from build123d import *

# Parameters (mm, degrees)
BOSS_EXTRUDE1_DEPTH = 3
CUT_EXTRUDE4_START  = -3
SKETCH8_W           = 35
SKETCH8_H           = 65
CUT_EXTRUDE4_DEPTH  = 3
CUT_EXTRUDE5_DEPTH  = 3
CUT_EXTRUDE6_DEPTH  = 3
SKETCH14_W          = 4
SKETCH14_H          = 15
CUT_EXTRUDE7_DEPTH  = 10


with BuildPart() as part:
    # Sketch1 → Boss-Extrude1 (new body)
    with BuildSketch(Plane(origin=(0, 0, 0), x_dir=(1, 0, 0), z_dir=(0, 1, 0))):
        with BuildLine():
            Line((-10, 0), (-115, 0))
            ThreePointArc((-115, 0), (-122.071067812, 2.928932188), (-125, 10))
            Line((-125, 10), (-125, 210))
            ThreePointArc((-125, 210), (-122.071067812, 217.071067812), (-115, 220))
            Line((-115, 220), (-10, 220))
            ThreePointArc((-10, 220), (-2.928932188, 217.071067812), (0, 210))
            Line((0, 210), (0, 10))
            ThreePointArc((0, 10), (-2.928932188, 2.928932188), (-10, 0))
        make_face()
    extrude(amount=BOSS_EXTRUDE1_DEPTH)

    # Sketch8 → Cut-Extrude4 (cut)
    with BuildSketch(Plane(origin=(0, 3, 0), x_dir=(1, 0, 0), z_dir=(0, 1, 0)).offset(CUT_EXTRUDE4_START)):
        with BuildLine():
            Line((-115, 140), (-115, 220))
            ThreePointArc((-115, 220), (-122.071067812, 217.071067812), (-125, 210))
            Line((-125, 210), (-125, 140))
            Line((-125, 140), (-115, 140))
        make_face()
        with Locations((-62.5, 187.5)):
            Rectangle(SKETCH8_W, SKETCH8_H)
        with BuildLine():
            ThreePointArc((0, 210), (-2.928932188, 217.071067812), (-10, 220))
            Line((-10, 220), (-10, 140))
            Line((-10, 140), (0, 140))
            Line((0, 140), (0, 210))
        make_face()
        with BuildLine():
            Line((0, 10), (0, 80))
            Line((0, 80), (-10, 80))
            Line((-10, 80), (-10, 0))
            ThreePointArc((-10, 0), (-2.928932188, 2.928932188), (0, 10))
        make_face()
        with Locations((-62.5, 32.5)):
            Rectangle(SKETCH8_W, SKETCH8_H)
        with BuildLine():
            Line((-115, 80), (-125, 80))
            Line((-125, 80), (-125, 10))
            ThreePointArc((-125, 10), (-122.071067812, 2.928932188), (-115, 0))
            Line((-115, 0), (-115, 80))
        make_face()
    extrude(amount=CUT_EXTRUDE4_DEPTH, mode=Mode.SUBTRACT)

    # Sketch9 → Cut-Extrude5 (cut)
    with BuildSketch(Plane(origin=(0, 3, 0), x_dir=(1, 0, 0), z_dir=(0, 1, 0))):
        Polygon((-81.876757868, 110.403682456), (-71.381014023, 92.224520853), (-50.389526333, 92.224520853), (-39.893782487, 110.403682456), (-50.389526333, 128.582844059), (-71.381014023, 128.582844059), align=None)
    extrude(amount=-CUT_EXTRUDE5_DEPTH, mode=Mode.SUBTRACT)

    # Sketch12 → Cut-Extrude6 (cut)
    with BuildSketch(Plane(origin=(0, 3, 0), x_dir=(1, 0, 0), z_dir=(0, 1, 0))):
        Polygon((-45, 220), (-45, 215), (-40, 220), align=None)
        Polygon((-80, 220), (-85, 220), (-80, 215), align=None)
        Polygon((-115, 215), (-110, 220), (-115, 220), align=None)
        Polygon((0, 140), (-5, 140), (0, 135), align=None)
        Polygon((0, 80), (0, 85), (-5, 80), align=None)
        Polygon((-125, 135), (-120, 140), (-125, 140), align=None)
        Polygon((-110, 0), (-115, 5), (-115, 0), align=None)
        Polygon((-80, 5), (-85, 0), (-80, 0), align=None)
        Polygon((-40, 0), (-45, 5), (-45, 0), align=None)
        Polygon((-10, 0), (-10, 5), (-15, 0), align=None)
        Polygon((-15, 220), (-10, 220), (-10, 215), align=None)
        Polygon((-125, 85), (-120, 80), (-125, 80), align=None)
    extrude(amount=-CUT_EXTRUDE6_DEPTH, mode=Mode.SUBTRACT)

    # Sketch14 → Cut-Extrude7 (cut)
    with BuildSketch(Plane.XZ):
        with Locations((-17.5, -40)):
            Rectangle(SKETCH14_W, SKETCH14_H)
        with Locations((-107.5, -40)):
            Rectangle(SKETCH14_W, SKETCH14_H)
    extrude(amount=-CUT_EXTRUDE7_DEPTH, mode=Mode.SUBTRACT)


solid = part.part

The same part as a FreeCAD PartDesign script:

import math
import FreeCAD as App
import Part
import Sketcher
from FreeCAD import Vector
Q = App.Units.Quantity

doc = App.newDocument("Part")
params = doc.addObject("Spreadsheet::Sheet", "Params")
for row, (alias, value) in enumerate([
    ("sketch1_radius", "10 mm"),
    ("sketch1_width", "105 mm"),
    ("sketch1_height", "200 mm"),
    ("pad1_length", "3 mm"),
    ("sketch2_radius", "10 mm"),
    ("sketch2_width", "35 mm"),
    ("sketch2_height", "80 mm"),
    ("sketch2_height2", "65 mm"),
    ("pocket1_length", "3 mm"),
    ("pocket2_length", "3 mm"),
    ("sketch4_width", "5 mm"),
    ("pocket3_length", "3 mm"),
    ("sketch5_width", "4 mm"),
    ("sketch5_height", "15 mm"),
    ("pocket4_length", "10 mm"),
], start=1):
    params.set(f"A{row}", alias)
    params.set(f"B{row}", "=" + value)
    params.setAlias(f"B{row}", alias)

body = doc.addObject("PartDesign::Body", "Body")

sketch1 = body.newObject("Sketcher::SketchObject", "Sketch")
sketch1.AttachmentSupport = (doc.getObject("XZ_Plane"), [""])
sketch1.MapMode = "FlatFace"
sketch1.addGeometry([
    Part.LineSegment(Vector(-115, 0, 0), Vector(-10, 0, 0)),
    Part.ArcOfCircle(Part.Circle(Vector(-10, -10, 0), Vector(0, 0, 1), 10), math.radians(0), math.radians(90)),
    Part.LineSegment(Vector(0, -10, 0), Vector(0, -210, 0)),
    Part.ArcOfCircle(Part.Circle(Vector(-10, -210, 0), Vector(0, 0, 1), 10), math.radians(-90), math.radians(0)),
    Part.LineSegment(Vector(-10, -220, 0), Vector(-115, -220, 0)),
    Part.ArcOfCircle(Part.Circle(Vector(-115, -210, 0), Vector(0, 0, 1), 10), math.radians(180), math.radians(270)),
    Part.LineSegment(Vector(-125, -210, 0), Vector(-125, -10, 0)),
    Part.ArcOfCircle(Part.Circle(Vector(-115, -10, 0), Vector(0, 0, 1), 10), math.radians(90), math.radians(180)),
], False)
sketch1.addConstraint([
    Sketcher.Constraint("Tangent", 0, 2, 1, 2),
    Sketcher.Constraint("Tangent", 1, 1, 2, 1),
    Sketcher.Constraint("Tangent", 2, 2, 3, 2),
    Sketcher.Constraint("Tangent", 3, 1, 4, 1),
    Sketcher.Constraint("Tangent", 4, 2, 5, 2),
    Sketcher.Constraint("Tangent", 5, 1, 6, 1),
    Sketcher.Constraint("Tangent", 6, 2, 7, 2),
    Sketcher.Constraint("Tangent", 7, 1, 0, 1),
    Sketcher.Constraint("Horizontal", 0),
    Sketcher.Constraint("Vertical", 2),
    Sketcher.Constraint("Horizontal", 4),
    Sketcher.Constraint("Vertical", 6),
    Sketcher.Constraint("Equal", 1, 3),
    Sketcher.Constraint("Equal", 3, 5),
    Sketcher.Constraint("Equal", 5, 7),
    Sketcher.Constraint("PointOnObject", 0, 2, -1),
    Sketcher.Constraint("PointOnObject", 1, 1, -2),
    Sketcher.Constraint("Radius", 1, Q("10 mm")),
    Sketcher.Constraint("DistanceX", 0, 1, 0, 2, Q("105 mm")),
    Sketcher.Constraint("DistanceY", 2, 2, 2, 1, Q("200 mm")),
])
sketch1.setExpression("Constraints[17]", "Params.sketch1_radius")
sketch1.setExpression("Constraints[18]", "Params.sketch1_width")
sketch1.setExpression("Constraints[19]", "Params.sketch1_height")
pad1 = body.newObject("PartDesign::Pad", "Pad")
pad1.Profile = sketch1
pad1.setExpression("Length", "Params.pad1_length")
pad1.Reversed = True

sketch2 = body.newObject("Sketcher::SketchObject", "Sketch001")
sketch2.AttachmentSupport = (doc.getObject("XZ_Plane"), [""])
sketch2.MapMode = "FlatFace"
sketch2.addGeometry([
    Part.LineSegment(Vector(-115, -140, 0), Vector(-115, -220, 0)),
    Part.ArcOfCircle(Part.Circle(Vector(-115, -210, 0), Vector(0, 0, 1), 10), math.radians(180), math.radians(270)),
    Part.LineSegment(Vector(-125, -210, 0), Vector(-125, -140, 0)),
    Part.LineSegment(Vector(-125, -140, 0), Vector(-115, -140, 0)),
    Part.LineSegment(Vector(-80, -220, 0), Vector(-80, -155, 0)),
    Part.LineSegment(Vector(-80, -155, 0), Vector(-45, -155, 0)),
    Part.LineSegment(Vector(-45, -155, 0), Vector(-45, -220, 0)),
    Part.LineSegment(Vector(-45, -220, 0), Vector(-80, -220, 0)),
    Part.ArcOfCircle(Part.Circle(Vector(-10, -210, 0), Vector(0, 0, 1), 10), math.radians(-90), math.radians(0)),
    Part.LineSegment(Vector(-10, -220, 0), Vector(-10, -140, 0)),
    Part.LineSegment(Vector(-10, -140, 0), Vector(0, -140, 0)),
    Part.LineSegment(Vector(0, -140, 0), Vector(0, -210, 0)),
    Part.LineSegment(Vector(0, -10, 0), Vector(0, -80, 0)),
    Part.LineSegment(Vector(0, -80, 0), Vector(-10, -80, 0)),
    Part.LineSegment(Vector(-10, -80, 0), Vector(-10, 0, 0)),
    Part.ArcOfCircle(Part.Circle(Vector(-10, -10, 0), Vector(0, 0, 1), 10), math.radians(0), math.radians(90)),
    Part.LineSegment(Vector(-80, -65, 0), Vector(-80, 0, 0)),
    Part.LineSegment(Vector(-80, 0, 0), Vector(-45, 0, 0)),
    Part.LineSegment(Vector(-45, 0, 0), Vector(-45, -65, 0)),
    Part.LineSegment(Vector(-45, -65, 0), Vector(-80, -65, 0)),
    Part.LineSegment(Vector(-115, -80, 0), Vector(-125, -80, 0)),
    Part.LineSegment(Vector(-125, -80, 0), Vector(-125, -10, 0)),
    Part.ArcOfCircle(Part.Circle(Vector(-115, -10, 0), Vector(0, 0, 1), 10), math.radians(90), math.radians(180)),
    Part.LineSegment(Vector(-115, 0, 0), Vector(-115, -80, 0)),
], False)
sketch2.addConstraint([
    Sketcher.Constraint("Coincident", 0, 2, 1, 2),
    Sketcher.Constraint("Tangent", 1, 1, 2, 1),
    Sketcher.Constraint("Coincident", 2, 2, 3, 1),
    Sketcher.Constraint("Coincident", 3, 2, 0, 1),
    Sketcher.Constraint("Coincident", 4, 2, 5, 1),
    Sketcher.Constraint("Coincident", 5, 2, 6, 1),
    Sketcher.Constraint("Coincident", 6, 2, 7, 1),
    Sketcher.Constraint("Coincident", 7, 2, 4, 1),
    Sketcher.Constraint("Coincident", 8, 1, 9, 1),
    Sketcher.Constraint("Coincident", 9, 2, 10, 1),
    Sketcher.Constraint("Coincident", 10, 2, 11, 1),
    Sketcher.Constraint("Tangent", 11, 2, 8, 2),
    Sketcher.Constraint("Coincident", 12, 2, 13, 1),
    Sketcher.Constraint("Coincident", 13, 2, 14, 1),
    Sketcher.Constraint("Coincident", 14, 2, 15, 2),
    Sketcher.Constraint("Tangent", 15, 1, 12, 1),
    Sketcher.Constraint("Coincident", 16, 2, 17, 1),
    Sketcher.Constraint("Coincident", 17, 2, 18, 1),
    Sketcher.Constraint("Coincident", 18, 2, 19, 1),
    Sketcher.Constraint("Coincident", 19, 2, 16, 1),
    Sketcher.Constraint("Coincident", 20, 2, 21, 1),
    Sketcher.Constraint("Tangent", 21, 2, 22, 2),
    Sketcher.Constraint("Coincident", 22, 1, 23, 1),
    Sketcher.Constraint("Coincident", 23, 2, 20, 1),
    Sketcher.Constraint("Vertical", 0),
    Sketcher.Constraint("Vertical", 2),
    Sketcher.Constraint("Horizontal", 3),
    Sketcher.Constraint("Vertical", 4),
    Sketcher.Constraint("Horizontal", 5),
    Sketcher.Constraint("Vertical", 6),
    Sketcher.Constraint("Horizontal", 7),
    Sketcher.Constraint("Vertical", 9),
    Sketcher.Constraint("Horizontal", 10),
    Sketcher.Constraint("Vertical", 11),
    Sketcher.Constraint("Vertical", 12),
    Sketcher.Constraint("Horizontal", 13),
    Sketcher.Constraint("Vertical", 14),
    Sketcher.Constraint("Vertical", 16),
    Sketcher.Constraint("Horizontal", 17),
    Sketcher.Constraint("Vertical", 18),
    Sketcher.Constraint("Horizontal", 19),
    Sketcher.Constraint("Horizontal", 20),
    Sketcher.Constraint("Vertical", 21),
    Sketcher.Constraint("Vertical", 23),
    Sketcher.Constraint("Equal", 1, 8),
    Sketcher.Constraint("Equal", 8, 15),
    Sketcher.Constraint("Equal", 15, 22),
    Sketcher.Constraint("PointOnObject", 10, 2, -2),
    Sketcher.Constraint("PointOnObject", 12, 2, -2),
    Sketcher.Constraint("PointOnObject", 14, 2, -1),
    Sketcher.Constraint("PointOnObject", 16, 2, -1),
    Sketcher.Constraint("PointOnObject", 22, 1, -1),
    Sketcher.Constraint("Horizontal", 1, 3, 8, 3),
    Sketcher.Constraint("Horizontal", 0, 2, 6, 2),
    Sketcher.Constraint("Horizontal", 3, 2, 9, 2),
    Sketcher.Constraint("Horizontal", 13, 2, 20, 2),
    Sketcher.Constraint("Vertical", 1, 3, 22, 3),
    Sketcher.Constraint("Vertical", 22, 3, 0, 2),
    Sketcher.Constraint("Vertical", 15, 3, 8, 1),
    Sketcher.Constraint("Vertical", 9, 2, 13, 2),
    Sketcher.Constraint("Vertical", 7, 2, 16, 2),
    Sketcher.Constraint("Vertical", 6, 2, 17, 2),
    Sketcher.Constraint("Vertical", 3, 2, 22, 1),
    Sketcher.Constraint("Equal", 11, 12),
    Sketcher.Constraint("Equal", 6, 16),
    Sketcher.Constraint("Radius", 1, Q("10 mm")),
    Sketcher.Constraint("DistanceX", 5, 1, 5, 2, Q("35 mm")),
    Sketcher.Constraint("DistanceY", 0, 2, 0, 1, Q("80 mm")),
    Sketcher.Constraint("DistanceY", 4, 1, 4, 2, Q("65 mm")),
    Sketcher.Constraint("DistanceX", 1, 3, -1, 1, Q("115 mm")),
    Sketcher.Constraint("DistanceY", 1, 3, -1, 1, Q("210 mm")),
    Sketcher.Constraint("DistanceX", 4, 2, -1, 1, Q("80 mm")),
])
sketch2.setExpression("Constraints[65]", "Params.sketch2_radius")
sketch2.setExpression("Constraints[66]", "Params.sketch2_width")
sketch2.setExpression("Constraints[67]", "Params.sketch2_height")
sketch2.setExpression("Constraints[68]", "Params.sketch2_height2")
pocket1 = body.newObject("PartDesign::Pocket", "Pocket")
pocket1.Profile = sketch2
pocket1.setExpression("Length", "Params.pocket1_length")

sketch3 = body.newObject("Sketcher::SketchObject", "Sketch002")
sketch3.AttachmentSupport = (doc.getObject("XZ_Plane"), [""])
sketch3.MapMode = "FlatFace"
sketch3.AttachmentOffset = App.Placement(Vector(0, 0, -3), App.Rotation())
sketch3.addGeometry([
    Part.LineSegment(Vector(-82, -110, 0), Vector(-71, -92, 0)),
    Part.LineSegment(Vector(-71, -92, 0), Vector(-50, -92, 0)),
    Part.LineSegment(Vector(-50, -92, 0), Vector(-40, -110, 0)),
    Part.LineSegment(Vector(-40, -110, 0), Vector(-50, -129, 0)),
    Part.LineSegment(Vector(-50, -129, 0), Vector(-71, -129, 0)),
    Part.LineSegment(Vector(-71, -129, 0), Vector(-82, -110, 0)),
], False)
sketch3.addConstraint([
    Sketcher.Constraint("Coincident", 0, 2, 1, 1),
    Sketcher.Constraint("Coincident", 1, 2, 2, 1),
    Sketcher.Constraint("Coincident", 2, 2, 3, 1),
    Sketcher.Constraint("Coincident", 3, 2, 4, 1),
    Sketcher.Constraint("Coincident", 4, 2, 5, 1),
    Sketcher.Constraint("Coincident", 5, 2, 0, 1),
    Sketcher.Constraint("Horizontal", 1),
    Sketcher.Constraint("Horizontal", 4),
    Sketcher.Constraint("Parallel", 0, 3),
    Sketcher.Constraint("Parallel", 2, 5),
    Sketcher.Constraint("Horizontal", 2, 2, 5, 2),
    Sketcher.Constraint("Vertical", 1, 2, 3, 2),
    Sketcher.Constraint("Vertical", 0, 2, 4, 2),
    Sketcher.Constraint("Angle", 0, Q("60 deg")),
    Sketcher.Constraint("DistanceX", 1, 1, 1, 2, Q("20.991488 mm")),
    Sketcher.Constraint("DistanceY", 0, 2, -1, 1, Q("92.224521 mm")),
    Sketcher.Constraint("DistanceY", 2, 2, 1, 2, Q("18.179162 mm")),
    Sketcher.Constraint("DistanceX", 0, 2, -1, 1, Q("71.381014 mm")),
])
pocket2 = body.newObject("PartDesign::Pocket", "Pocket001")
pocket2.Profile = sketch3
pocket2.setExpression("Length", "Params.pocket2_length")
pocket2.Reversed = True

sketch4 = body.newObject("Sketcher::SketchObject", "Sketch003")
sketch4.AttachmentSupport = (doc.getObject("XZ_Plane"), [""])
sketch4.MapMode = "FlatFace"
sketch4.AttachmentOffset = App.Placement(Vector(0, 0, -3), App.Rotation())
sketch4.addGeometry([
    Part.LineSegment(Vector(-45, -220, 0), Vector(-45, -215, 0)),
    Part.LineSegment(Vector(-45, -215, 0), Vector(-40, -220, 0)),
    Part.LineSegment(Vector(-40, -220, 0), Vector(-45, -220, 0)),
    Part.LineSegment(Vector(-80, -220, 0), Vector(-85, -220, 0)),
    Part.LineSegment(Vector(-85, -220, 0), Vector(-80, -215, 0)),
    Part.LineSegment(Vector(-80, -215, 0), Vector(-80, -220, 0)),
    Part.LineSegment(Vector(-115, -215, 0), Vector(-110, -220, 0)),
    Part.LineSegment(Vector(-110, -220, 0), Vector(-115, -220, 0)),
    Part.LineSegment(Vector(-115, -220, 0), Vector(-115, -215, 0)),
    Part.LineSegment(Vector(0, -140, 0), Vector(-5, -140, 0)),
    Part.LineSegment(Vector(-5, -140, 0), Vector(0, -135, 0)),
    Part.LineSegment(Vector(0, -135, 0), Vector(0, -140, 0)),
    Part.LineSegment(Vector(0, -80, 0), Vector(0, -85, 0)),
    Part.LineSegment(Vector(0, -85, 0), Vector(-5, -80, 0)),
    Part.LineSegment(Vector(-5, -80, 0), Vector(0, -80, 0)),
    Part.LineSegment(Vector(-125, -135, 0), Vector(-120, -140, 0)),
    Part.LineSegment(Vector(-120, -140, 0), Vector(-125, -140, 0)),
    Part.LineSegment(Vector(-125, -140, 0), Vector(-125, -135, 0)),
    Part.LineSegment(Vector(-110, 0, 0), Vector(-115, -5, 0)),
    Part.LineSegment(Vector(-115, -5, 0), Vector(-115, 0, 0)),
    Part.LineSegment(Vector(-115, 0, 0), Vector(-110, 0, 0)),
    Part.LineSegment(Vector(-80, -5, 0), Vector(-85, 0, 0)),
    Part.LineSegment(Vector(-85, 0, 0), Vector(-80, 0, 0)),
    Part.LineSegment(Vector(-80, 0, 0), Vector(-80, -5, 0)),
    Part.LineSegment(Vector(-40, 0, 0), Vector(-45, -5, 0)),
    Part.LineSegment(Vector(-45, -5, 0), Vector(-45, 0, 0)),
    Part.LineSegment(Vector(-45, 0, 0), Vector(-40, 0, 0)),
    Part.LineSegment(Vector(-10, 0, 0), Vector(-10, -5, 0)),
    Part.LineSegment(Vector(-10, -5, 0), Vector(-15, 0, 0)),
    Part.LineSegment(Vector(-15, 0, 0), Vector(-10, 0, 0)),
    Part.LineSegment(Vector(-10, -220, 0), Vector(-15, -220, 0)),
    Part.LineSegment(Vector(-15, -220, 0), Vector(-10, -215, 0)),
    Part.LineSegment(Vector(-10, -215, 0), Vector(-10, -220, 0)),
    Part.LineSegment(Vector(-120, -80, 0), Vector(-125, -85, 0)),
    Part.LineSegment(Vector(-125, -85, 0), Vector(-125, -80, 0)),
    Part.LineSegment(Vector(-125, -80, 0), Vector(-120, -80, 0)),
], False)
sketch4.addConstraint([
    Sketcher.Constraint("Coincident", 0, 2, 1, 1),
    Sketcher.Constraint("Coincident", 1, 2, 2, 1),
    Sketcher.Constraint("Coincident", 2, 2, 0, 1),
    Sketcher.Constraint("Coincident", 3, 2, 4, 1),
    Sketcher.Constraint("Coincident", 4, 2, 5, 1),
    Sketcher.Constraint("Coincident", 5, 2, 3, 1),
    Sketcher.Constraint("Coincident", 6, 2, 7, 1),
    Sketcher.Constraint("Coincident", 7, 2, 8, 1),
    Sketcher.Constraint("Coincident", 8, 2, 6, 1),
    Sketcher.Constraint("Coincident", 9, 2, 10, 1),
    Sketcher.Constraint("Coincident", 10, 2, 11, 1),
    Sketcher.Constraint("Coincident", 11, 2, 9, 1),
    Sketcher.Constraint("Coincident", 12, 2, 13, 1),
    Sketcher.Constraint("Coincident", 13, 2, 14, 1),
    Sketcher.Constraint("Coincident", 14, 2, 12, 1),
    Sketcher.Constraint("Coincident", 15, 2, 16, 1),
    Sketcher.Constraint("Coincident", 16, 2, 17, 1),
    Sketcher.Constraint("Coincident", 17, 2, 15, 1),
    Sketcher.Constraint("Coincident", 18, 2, 19, 1),
    Sketcher.Constraint("Coincident", 19, 2, 20, 1),
    Sketcher.Constraint("Coincident", 20, 2, 18, 1),
    Sketcher.Constraint("Coincident", 21, 2, 22, 1),
    Sketcher.Constraint("Coincident", 22, 2, 23, 1),
    Sketcher.Constraint("Coincident", 23, 2, 21, 1),
    Sketcher.Constraint("Coincident", 24, 2, 25, 1),
    Sketcher.Constraint("Coincident", 25, 2, 26, 1),
    Sketcher.Constraint("Coincident", 26, 2, 24, 1),
    Sketcher.Constraint("Coincident", 27, 2, 28, 1),
    Sketcher.Constraint("Coincident", 28, 2, 29, 1),
    Sketcher.Constraint("Coincident", 29, 2, 27, 1),
    Sketcher.Constraint("Coincident", 30, 2, 31, 1),
    Sketcher.Constraint("Coincident", 31, 2, 32, 1),
    Sketcher.Constraint("Coincident", 32, 2, 30, 1),
    Sketcher.Constraint("Coincident", 33, 2, 34, 1),
    Sketcher.Constraint("Coincident", 34, 2, 35, 1),
    Sketcher.Constraint("Coincident", 35, 2, 33, 1),
    Sketcher.Constraint("Vertical", 0),
    Sketcher.Constraint("Horizontal", 2),
    Sketcher.Constraint("Horizontal", 3),
    Sketcher.Constraint("Vertical", 5),
    Sketcher.Constraint("Horizontal", 7),
    Sketcher.Constraint("Vertical", 8),
    Sketcher.Constraint("Horizontal", 9),
    Sketcher.Constraint("Vertical", 11),
    Sketcher.Constraint("Vertical", 12),
    Sketcher.Constraint("Horizontal", 14),
    Sketcher.Constraint("Horizontal", 16),
    Sketcher.Constraint("Vertical", 17),
    Sketcher.Constraint("Vertical", 19),
    Sketcher.Constraint("Horizontal", 20),
    Sketcher.Constraint("Horizontal", 22),
    Sketcher.Constraint("Vertical", 23),
    Sketcher.Constraint("Vertical", 25),
    Sketcher.Constraint("Horizontal", 26),
    Sketcher.Constraint("Vertical", 27),
    Sketcher.Constraint("Horizontal", 29),
    Sketcher.Constraint("Horizontal", 30),
    Sketcher.Constraint("Vertical", 32),
    Sketcher.Constraint("Vertical", 34),
    Sketcher.Constraint("Horizontal", 35),
    Sketcher.Constraint("PointOnObject", 10, 2, -2),
    Sketcher.Constraint("PointOnObject", 12, 2, -2),
    Sketcher.Constraint("PointOnObject", 19, 2, -1),
    Sketcher.Constraint("PointOnObject", 21, 2, -1),
    Sketcher.Constraint("PointOnObject", 25, 2, -1),
    Sketcher.Constraint("PointOnObject", 28, 2, -1),
    Sketcher.Constraint("Perpendicular", 1, 4),
    Sketcher.Constraint("Perpendicular", 4, 6),
    Sketcher.Constraint("Perpendicular", 6, 10),
    Sketcher.Constraint("Perpendicular", 10, 13),
    Sketcher.Constraint("Parallel", 13, 15),
    Sketcher.Constraint("Perpendicular", 15, 18),
    Sketcher.Constraint("Perpendicular", 18, 21),
    Sketcher.Constraint("Perpendicular", 21, 24),
    Sketcher.Constraint("Perpendicular", 24, 28),
    Sketcher.Constraint("Perpendicular", 28, 31),
    Sketcher.Constraint("Parallel", 31, 33),
    Sketcher.Constraint("Horizontal", 2, 2, 3, 2),
    Sketcher.Constraint("Horizontal", 0, 2, 4, 2),
    Sketcher.Constraint("Horizontal", 5, 2, 6, 2),
    Sketcher.Constraint("Horizontal", 4, 2, 8, 2),
    Sketcher.Constraint("Horizontal", 11, 2, 15, 2),
    Sketcher.Constraint("Horizontal", 10, 2, 17, 2),
    Sketcher.Constraint("Horizontal", 18, 2, 23, 2),
    Sketcher.Constraint("Horizontal", 23, 2, 24, 2),
    Sketcher.Constraint("Horizontal", 24, 2, 27, 2),
    Sketcher.Constraint("Horizontal", 7, 2, 30, 2),
    Sketcher.Constraint("Horizontal", 8, 2, 31, 2),
    Sketcher.Constraint("Horizontal", 12, 2, 33, 2),
    Sketcher.Constraint("Horizontal", 14, 2, 34, 2),
    Sketcher.Constraint("Vertical", 9, 2, 13, 2),
    Sketcher.Constraint("Vertical", 8, 2, 18, 2),
    Sketcher.Constraint("Vertical", 6, 2, 20, 2),
    Sketcher.Constraint("Vertical", 3, 2, 21, 2),
    Sketcher.Constraint("Vertical", 5, 2, 22, 2),
    Sketcher.Constraint("Vertical", 2, 2, 24, 2),
    Sketcher.Constraint("Vertical", 28, 2, 30, 2),
    Sketcher.Constraint("Vertical", 17, 2, 33, 2),
    Sketcher.Constraint("Equal", 7, 9),
    Sketcher.Constraint("DistanceX", 2, 2, 2, 1, Q("5 mm")),
    Sketcher.Constraint("DistanceX", 0, 2, -1, 1, Q("45 mm")),
    Sketcher.Constraint("DistanceY", 0, 2, -1, 1, Q("215 mm")),
    Sketcher.Constraint("DistanceX", 3, 2, -1, 1, Q("85 mm")),
    Sketcher.Constraint("DistanceX", 6, 2, -1, 1, Q("110 mm")),
    Sketcher.Constraint("DistanceY", 9, 2, -1, 1, Q("140 mm")),
    Sketcher.Constraint("DistanceY", 12, 2, -1, 1, Q("85 mm")),
    Sketcher.Constraint("DistanceX", 15, 2, -1, 1, Q("120 mm")),
    Sketcher.Constraint("DistanceX", 27, 2, -1, 1, Q("10 mm")),
])
sketch4.setExpression("Constraints[99]", "Params.sketch4_width")
pocket3 = body.newObject("PartDesign::Pocket", "Pocket002")
pocket3.Profile = sketch4
pocket3.setExpression("Length", "Params.pocket3_length")
pocket3.Reversed = True

sketch5 = body.newObject("Sketcher::SketchObject", "Sketch004")
sketch5.AttachmentSupport = (doc.getObject("XZ_Plane"), [""])
sketch5.MapMode = "FlatFace"
sketch5.addGeometry([
    Part.LineSegment(Vector(-19.5, -32.5, 0), Vector(-19.5, -47.5, 0)),
    Part.LineSegment(Vector(-19.5, -47.5, 0), Vector(-15.5, -47.5, 0)),
    Part.LineSegment(Vector(-15.5, -47.5, 0), Vector(-15.5, -32.5, 0)),
    Part.LineSegment(Vector(-15.5, -32.5, 0), Vector(-19.5, -32.5, 0)),
    Part.LineSegment(Vector(-109.5, -32.5, 0), Vector(-109.5, -47.5, 0)),
    Part.LineSegment(Vector(-109.5, -47.5, 0), Vector(-105.5, -47.5, 0)),
    Part.LineSegment(Vector(-105.5, -47.5, 0), Vector(-105.5, -32.5, 0)),
    Part.LineSegment(Vector(-105.5, -32.5, 0), Vector(-109.5, -32.5, 0)),
], False)
sketch5.addConstraint([
    Sketcher.Constraint("Coincident", 0, 2, 1, 1),
    Sketcher.Constraint("Coincident", 1, 2, 2, 1),
    Sketcher.Constraint("Coincident", 2, 2, 3, 1),
    Sketcher.Constraint("Coincident", 3, 2, 0, 1),
    Sketcher.Constraint("Coincident", 4, 2, 5, 1),
    Sketcher.Constraint("Coincident", 5, 2, 6, 1),
    Sketcher.Constraint("Coincident", 6, 2, 7, 1),
    Sketcher.Constraint("Coincident", 7, 2, 4, 1),
    Sketcher.Constraint("Vertical", 0),
    Sketcher.Constraint("Horizontal", 1),
    Sketcher.Constraint("Vertical", 2),
    Sketcher.Constraint("Horizontal", 3),
    Sketcher.Constraint("Vertical", 4),
    Sketcher.Constraint("Horizontal", 5),
    Sketcher.Constraint("Vertical", 6),
    Sketcher.Constraint("Horizontal", 7),
    Sketcher.Constraint("Horizontal", 1, 2, 4, 2),
    Sketcher.Constraint("Horizontal", 3, 2, 6, 2),
    Sketcher.Constraint("Equal", 3, 5),
    Sketcher.Constraint("DistanceX", 1, 1, 1, 2, Q("4 mm")),
    Sketcher.Constraint("DistanceY", 0, 2, 0, 1, Q("15 mm")),
    Sketcher.Constraint("DistanceX", 4, 2, 0, 2, Q("90 mm")),
    Sketcher.Constraint("DistanceX", 0, 2, -1, 1, Q("19.5 mm")),
    Sketcher.Constraint("DistanceY", 0, 2, -1, 1, Q("47.5 mm")),
])
sketch5.setExpression("Constraints[19]", "Params.sketch5_width")
sketch5.setExpression("Constraints[20]", "Params.sketch5_height")
pocket4 = body.newObject("PartDesign::Pocket", "Pocket003")
pocket4.Profile = sketch5
pocket4.setExpression("Length", "Params.pocket4_length")

doc.recompute()
